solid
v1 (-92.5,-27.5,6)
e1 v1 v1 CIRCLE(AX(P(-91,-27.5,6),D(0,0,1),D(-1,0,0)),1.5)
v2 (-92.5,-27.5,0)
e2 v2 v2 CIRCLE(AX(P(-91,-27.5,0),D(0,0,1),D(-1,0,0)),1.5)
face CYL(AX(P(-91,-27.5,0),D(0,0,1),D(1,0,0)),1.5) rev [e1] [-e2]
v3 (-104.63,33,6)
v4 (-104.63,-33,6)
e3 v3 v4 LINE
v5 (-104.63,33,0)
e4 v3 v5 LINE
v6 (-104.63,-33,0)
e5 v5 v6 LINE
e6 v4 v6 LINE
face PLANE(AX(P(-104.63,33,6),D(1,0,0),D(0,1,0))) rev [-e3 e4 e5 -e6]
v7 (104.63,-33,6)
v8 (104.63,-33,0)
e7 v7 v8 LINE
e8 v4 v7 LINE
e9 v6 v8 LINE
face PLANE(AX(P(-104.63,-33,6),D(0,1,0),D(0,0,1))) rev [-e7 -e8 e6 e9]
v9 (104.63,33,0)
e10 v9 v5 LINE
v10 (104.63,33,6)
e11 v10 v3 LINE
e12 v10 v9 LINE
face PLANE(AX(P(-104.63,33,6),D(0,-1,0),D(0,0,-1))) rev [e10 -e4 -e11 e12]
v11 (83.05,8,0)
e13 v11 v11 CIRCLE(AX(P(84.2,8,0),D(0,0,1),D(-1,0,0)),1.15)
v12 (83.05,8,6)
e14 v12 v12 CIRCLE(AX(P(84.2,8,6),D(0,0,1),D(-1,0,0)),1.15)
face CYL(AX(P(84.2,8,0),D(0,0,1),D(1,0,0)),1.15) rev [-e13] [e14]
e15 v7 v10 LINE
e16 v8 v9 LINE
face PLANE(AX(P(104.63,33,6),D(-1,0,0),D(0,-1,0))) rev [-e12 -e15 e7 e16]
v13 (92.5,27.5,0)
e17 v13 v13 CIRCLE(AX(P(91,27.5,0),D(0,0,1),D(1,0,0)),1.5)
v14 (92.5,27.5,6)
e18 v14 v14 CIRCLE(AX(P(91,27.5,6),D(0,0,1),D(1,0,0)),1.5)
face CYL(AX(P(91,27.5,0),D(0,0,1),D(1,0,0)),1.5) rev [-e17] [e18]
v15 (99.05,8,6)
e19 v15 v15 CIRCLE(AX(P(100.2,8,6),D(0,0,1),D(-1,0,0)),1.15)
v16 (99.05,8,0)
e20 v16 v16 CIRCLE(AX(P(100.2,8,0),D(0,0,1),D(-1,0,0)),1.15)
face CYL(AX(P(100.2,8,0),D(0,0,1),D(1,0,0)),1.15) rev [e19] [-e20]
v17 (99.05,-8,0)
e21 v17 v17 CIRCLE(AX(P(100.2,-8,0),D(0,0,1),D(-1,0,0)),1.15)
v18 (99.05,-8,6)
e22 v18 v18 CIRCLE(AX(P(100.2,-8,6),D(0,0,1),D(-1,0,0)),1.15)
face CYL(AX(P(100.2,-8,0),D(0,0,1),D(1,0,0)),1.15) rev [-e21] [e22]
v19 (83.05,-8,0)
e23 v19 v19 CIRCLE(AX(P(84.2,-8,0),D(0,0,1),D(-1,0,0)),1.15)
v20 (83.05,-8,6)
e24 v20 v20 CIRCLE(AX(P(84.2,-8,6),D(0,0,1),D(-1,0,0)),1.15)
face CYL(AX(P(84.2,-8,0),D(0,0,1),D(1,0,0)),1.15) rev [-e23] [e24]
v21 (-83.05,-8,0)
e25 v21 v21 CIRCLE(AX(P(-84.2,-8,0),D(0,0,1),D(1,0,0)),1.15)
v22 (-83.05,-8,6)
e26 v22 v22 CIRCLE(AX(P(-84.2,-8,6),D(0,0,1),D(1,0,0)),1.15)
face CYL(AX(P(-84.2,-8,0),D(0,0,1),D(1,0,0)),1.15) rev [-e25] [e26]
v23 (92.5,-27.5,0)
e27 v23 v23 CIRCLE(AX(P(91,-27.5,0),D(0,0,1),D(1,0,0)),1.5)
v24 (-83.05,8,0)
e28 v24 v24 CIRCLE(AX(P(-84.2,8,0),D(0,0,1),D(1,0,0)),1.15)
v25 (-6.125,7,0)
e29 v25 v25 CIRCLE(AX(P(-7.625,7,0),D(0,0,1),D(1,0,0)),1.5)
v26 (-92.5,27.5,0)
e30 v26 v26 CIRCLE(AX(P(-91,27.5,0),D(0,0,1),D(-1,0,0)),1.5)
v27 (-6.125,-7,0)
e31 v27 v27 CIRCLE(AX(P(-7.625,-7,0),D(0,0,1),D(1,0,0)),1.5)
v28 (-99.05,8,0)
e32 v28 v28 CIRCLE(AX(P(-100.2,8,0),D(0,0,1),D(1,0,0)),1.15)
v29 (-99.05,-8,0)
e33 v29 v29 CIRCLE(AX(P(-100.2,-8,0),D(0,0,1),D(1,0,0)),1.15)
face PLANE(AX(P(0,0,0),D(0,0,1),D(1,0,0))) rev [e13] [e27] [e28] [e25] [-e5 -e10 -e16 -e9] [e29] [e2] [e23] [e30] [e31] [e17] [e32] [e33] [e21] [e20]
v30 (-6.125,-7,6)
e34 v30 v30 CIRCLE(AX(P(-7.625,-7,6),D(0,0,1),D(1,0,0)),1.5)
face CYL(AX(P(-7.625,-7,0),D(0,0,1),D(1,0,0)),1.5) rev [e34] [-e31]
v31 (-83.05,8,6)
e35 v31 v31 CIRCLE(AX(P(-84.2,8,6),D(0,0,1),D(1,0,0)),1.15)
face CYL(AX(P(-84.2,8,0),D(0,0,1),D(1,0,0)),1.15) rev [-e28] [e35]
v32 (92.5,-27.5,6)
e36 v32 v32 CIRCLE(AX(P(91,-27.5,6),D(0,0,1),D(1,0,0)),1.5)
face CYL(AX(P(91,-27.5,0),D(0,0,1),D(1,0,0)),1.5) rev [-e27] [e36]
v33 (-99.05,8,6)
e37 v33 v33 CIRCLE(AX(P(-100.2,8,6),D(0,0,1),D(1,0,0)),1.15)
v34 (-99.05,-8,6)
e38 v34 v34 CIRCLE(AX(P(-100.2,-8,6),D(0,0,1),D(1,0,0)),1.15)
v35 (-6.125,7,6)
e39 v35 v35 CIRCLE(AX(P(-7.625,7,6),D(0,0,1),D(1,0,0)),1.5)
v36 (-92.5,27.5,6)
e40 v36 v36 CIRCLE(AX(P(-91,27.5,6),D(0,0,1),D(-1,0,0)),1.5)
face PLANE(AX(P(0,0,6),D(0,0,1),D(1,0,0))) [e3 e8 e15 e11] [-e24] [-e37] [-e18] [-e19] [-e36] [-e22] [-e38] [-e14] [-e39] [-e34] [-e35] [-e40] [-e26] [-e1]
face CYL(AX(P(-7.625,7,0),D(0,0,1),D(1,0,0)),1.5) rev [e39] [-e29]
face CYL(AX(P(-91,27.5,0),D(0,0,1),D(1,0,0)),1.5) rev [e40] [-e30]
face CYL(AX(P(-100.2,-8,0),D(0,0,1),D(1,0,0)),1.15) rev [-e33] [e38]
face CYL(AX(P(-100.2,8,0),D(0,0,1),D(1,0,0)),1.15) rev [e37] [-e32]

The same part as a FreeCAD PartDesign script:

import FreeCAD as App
import Part
import Sketcher
Q = App.Units.Quantity

doc = App.newDocument("Part")
body = doc.addObject("PartDesign::Body", "Body")

# Sketch on XY plane
sketch1 = body.newObject("Sketcher::SketchObject", "Sketch")
sketch1.AttachmentSupport = (doc.getObject("XY_Plane"), [""])
sketch1.MapMode = "FlatFace"
sketch1.addGeometry([
    Part.LineSegment(App.Vector(-105, 33, 0), App.Vector(-105, -33, 0)),
    Part.LineSegment(App.Vector(-105, -33, 0), App.Vector(105, -33, 0)),
    Part.LineSegment(App.Vector(105, -33, 0), App.Vector(105, 33, 0)),
    Part.LineSegment(App.Vector(105, 33, 0), App.Vector(-105, 33, 0)),
], False)
sketch1.addConstraint([
    Sketcher.Constraint("Coincident", 0, 2, 1, 1),
    Sketcher.Constraint("Coincident", 1, 2, 2, 1),
    Sketcher.Constraint("Coincident", 2, 2, 3, 1),
    Sketcher.Constraint("Coincident", 3, 2, 0, 1),
    Sketcher.Constraint("Vertical", 0),
    Sketcher.Constraint("Horizontal", 1),
    Sketcher.Constraint("Vertical", 2),
    Sketcher.Constraint("Horizontal", 3),
    Sketcher.Constraint("Symmetric", 0, 2, 2, 2, -1, 1),
    Sketcher.Constraint("DistanceY", 0, 2, 0, 1, Q("66 mm")),
    Sketcher.Constraint("DistanceX", 1, 1, 1, 2, Q("209.26 mm")),
])
pad1 = body.newObject("PartDesign::Pad", "Pad")
pad1.Profile = sketch1
pad1.Length = 6

# Sketch on XY plane
sketch2 = body.newObject("Sketcher::SketchObject", "Sketch001")
sketch2.AttachmentSupport = (doc.getObject("XY_Plane"), [""])
sketch2.MapMode = "FlatFace"
sketch2.AttachmentOffset = App.Placement(App.Vector(0, 0, 6), App.Rotation())
sketch2.addGeometry([
    Part.Circle(App.Vector(-100.2, 8, 0), App.Vector(0, 0, 1), 1.1),  # 0
    Part.Circle(App.Vector(-84.2, 8, 0), App.Vector(0, 0, 1), 1.1),  # 1
    Part.Circle(App.Vector(-84.2, -8, 0), App.Vector(0, 0, 1), 1.1),  # 2
    Part.Circle(App.Vector(-100.2, -8, 0), App.Vector(0, 0, 1), 1.1),  # 3
    Part.Circle(App.Vector(100.2, -8, 0), App.Vector(0, 0, 1), 1.1),  # 4
    Part.Circle(App.Vector(84.2, -8, 0), App.Vector(0, 0, 1), 1.1),  # 5
    Part.Circle(App.Vector(84.2, 8, 0), App.Vector(0, 0, 1), 1.1),  # 6
    Part.Circle(App.Vector(100.2, 8, 0), App.Vector(0, 0, 1), 1.1),  # 7
    Part.Circle(App.Vector(-7.6, 7, 0), App.Vector(0, 0, 1), 1.5),  # 8
    Part.Circle(App.Vector(-7.6, -7, 0), App.Vector(0, 0, 1), 1.5),  # 9
    Part.Circle(App.Vector(91, 27.5, 0), App.Vector(0, 0, 1), 1.5),  # 10
    Part.Circle(App.Vector(91, -27.5, 0), App.Vector(0, 0, 1), 1.5),  # 11
    Part.Circle(App.Vector(-91, -27.5, 0), App.Vector(0, 0, 1), 1.5),  # 12
    Part.Circle(App.Vector(-91, 27.5, 0), App.Vector(0, 0, 1), 1.5),  # 13
], False)
sketch2.addConstraint([
    Sketcher.Constraint("Equal", 0, 1),
    Sketcher.Constraint("Equal", 1, 2),
    Sketcher.Constraint("Equal", 2, 3),
    Sketcher.Constraint("Equal", 3, 4),
    Sketcher.Constraint("Equal", 4, 5),
    Sketcher.Constraint("Equal", 5, 6),
    Sketcher.Constraint("Equal", 6, 7),
    Sketcher.Constraint("Equal", 8, 9),
    Sketcher.Constraint("Equal", 9, 10),
    Sketcher.Constraint("Equal", 10, 11),
    Sketcher.Constraint("Equal", 11, 12),
    Sketcher.Constraint("Equal", 12, 13),
    Sketcher.Constraint("Symmetric", 0, 3, 4, 3, -1, 1),
    Sketcher.Constraint("Symmetric", 1, 3, 5, 3, -1, 1),
    Sketcher.Constraint("Symmetric", 2, 3, 6, 3, -1, 1),
    Sketcher.Constraint("Symmetric", 3, 3, 7, 3, -1, 1),
    Sketcher.Constraint("Symmetric", 10, 3, 12, 3, -1, 1),
    Sketcher.Constraint("Symmetric", 11, 3, 13, 3, -1, 1),
    Sketcher.Constraint("Symmetric", 3, 3, 4, 3, -2),
    Sketcher.Constraint("Symmetric", 2, 3, 5, 3, -2),
    Sketcher.Constraint("Symmetric", 11, 3, 12, 3, -2),
    Sketcher.Constraint("Symmetric", 8, 3, 9, 3, -1),
    Sketcher.Constraint("Horizontal", 0, 3, 1, 3),
    Sketcher.Constraint("Diameter", 8, Q("3 mm")),
    Sketcher.Constraint("Diameter", 0, Q("2.3 mm")),
    Sketcher.Constraint("DistanceY", -1, 1, 0, 3, Q("8 mm")),
    Sketcher.Constraint("DistanceY", -1, 1, 8, 3, Q("7 mm")),
    Sketcher.Constraint("DistanceX", -1, 1, 10, 3, Q("91 mm")),
    Sketcher.Constraint("DistanceX", 0, 3, 1, 3, Q("16 mm")),
    Sketcher.Constraint("DistanceY", 11, 3, 10, 3, Q("55 mm")),
    Sketcher.Constraint("DistanceX", 0, 3, -1, 1, Q("100.2 mm")),
    Sketcher.Constraint("DistanceX", 8, 3, -1, 1, Q("7.625 mm")),
])
pocket1 = body.newObject("PartDesign::Pocket", "Pocket")
pocket1.Profile = sketch2
pocket1.Length = 6

doc.recompute()
